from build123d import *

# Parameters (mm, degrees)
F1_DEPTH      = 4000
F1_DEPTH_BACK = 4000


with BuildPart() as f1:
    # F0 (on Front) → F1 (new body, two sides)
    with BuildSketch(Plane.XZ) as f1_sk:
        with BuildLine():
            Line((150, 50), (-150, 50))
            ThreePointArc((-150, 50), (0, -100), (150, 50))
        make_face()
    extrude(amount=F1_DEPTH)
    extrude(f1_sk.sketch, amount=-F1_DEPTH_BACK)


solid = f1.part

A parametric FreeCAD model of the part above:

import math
import FreeCAD as App
import Part
import Sketcher
from FreeCAD import Vector
Q = App.Units.Quantity

doc = App.newDocument("Part")
body = doc.addObject("PartDesign::Body", "Body")

# Sketch on XZ plane
sketch1 = body.newObject("Sketcher::SketchObject", "Sketch")
sketch1.AttachmentSupport = (doc.getObject("XZ_Plane"), [""])
sketch1.MapMode = "FlatFace"
sketch1.addGeometry([
    Part.LineSegment(Vector(150, 50, 0), Vector(-150, 50, 0)),
    Part.ArcOfCircle(Part.Circle(Vector(0, 50, 0), Vector(0, 0, 1), 150), math.radians(180), math.radians(360)),
], False)
sketch1.addConstraint([
    Sketcher.Constraint("Coincident", 0, 1, 1, 2),
    Sketcher.Constraint("Coincident", 1, 1, 0, 2),
    Sketcher.Constraint("Horizontal", 0),
    Sketcher.Constraint("PointOnObject", 1, 3, -2),
    Sketcher.Constraint("Horizontal", 1, 3, 0, 1),
    Sketcher.Constraint("Radius", 1, Q("150 mm")),
    Sketcher.Constraint("DistanceY", -1, 1, 1, 3, Q("50 mm")),
])
pad1 = body.newObject("PartDesign::Pad", "Pad")
pad1.Profile = sketch1
pad1.Type = "TwoLengths"
pad1.Length = 4000
pad1.Length2 = 4000

doc.recompute()
